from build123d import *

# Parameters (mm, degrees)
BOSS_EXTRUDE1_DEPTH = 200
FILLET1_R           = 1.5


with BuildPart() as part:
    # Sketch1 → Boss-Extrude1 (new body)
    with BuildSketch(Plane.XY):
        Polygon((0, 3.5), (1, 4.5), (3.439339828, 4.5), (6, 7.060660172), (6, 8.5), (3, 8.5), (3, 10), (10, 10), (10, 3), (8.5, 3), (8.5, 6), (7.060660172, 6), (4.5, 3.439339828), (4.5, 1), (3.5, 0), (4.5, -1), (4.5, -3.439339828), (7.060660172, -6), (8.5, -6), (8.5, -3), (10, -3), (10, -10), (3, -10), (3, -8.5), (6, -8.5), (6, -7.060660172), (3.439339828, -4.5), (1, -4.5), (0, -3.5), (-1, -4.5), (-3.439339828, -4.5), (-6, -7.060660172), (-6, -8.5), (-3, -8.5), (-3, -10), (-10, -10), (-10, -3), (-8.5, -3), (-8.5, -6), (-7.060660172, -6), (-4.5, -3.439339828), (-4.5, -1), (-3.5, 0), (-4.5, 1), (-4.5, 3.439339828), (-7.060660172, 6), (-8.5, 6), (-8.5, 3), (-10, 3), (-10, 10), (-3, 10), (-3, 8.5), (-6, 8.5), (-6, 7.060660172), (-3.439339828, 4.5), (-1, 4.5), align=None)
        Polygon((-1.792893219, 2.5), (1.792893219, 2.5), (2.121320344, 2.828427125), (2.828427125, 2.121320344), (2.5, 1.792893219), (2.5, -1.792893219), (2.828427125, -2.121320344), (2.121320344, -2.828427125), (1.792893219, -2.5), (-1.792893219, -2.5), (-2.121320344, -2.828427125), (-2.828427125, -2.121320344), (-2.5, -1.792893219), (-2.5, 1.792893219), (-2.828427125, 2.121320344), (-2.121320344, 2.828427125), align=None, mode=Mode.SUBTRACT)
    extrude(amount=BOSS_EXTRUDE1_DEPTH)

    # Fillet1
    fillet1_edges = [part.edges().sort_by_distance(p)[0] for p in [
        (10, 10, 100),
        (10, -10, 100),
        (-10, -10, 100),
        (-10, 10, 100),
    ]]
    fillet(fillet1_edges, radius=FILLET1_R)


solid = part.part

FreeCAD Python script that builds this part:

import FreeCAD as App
import Part
import Sketcher

V = App.Vector
Q = App.Units.Quantity


def edges_at(feature, points):
    """Names of the edges that pass closest to the given points."""
    edges = feature.Shape.Edges
    near = lambda p: min(range(len(edges)), key=lambda i: edges[i].distToShape(Part.Vertex(*p))[0])
    return sorted({f"Edge{near(p) + 1}" for p in points})


def add_polygon(sketch, points):
    """Adds a closed chain of lines whose ends are joined by coincident constraints."""
    first, n = sketch.GeometryCount, len(points)
    for a, b in zip(points, points[1:] + points[:1]):
        sketch.addGeometry(Part.LineSegment(App.Vector(*a, 0), App.Vector(*b, 0)), False)
    for i in range(n):
        sketch.addConstraint(Sketcher.Constraint("Coincident", first + i, 2, first + (i + 1) % n, 1))

doc = App.newDocument("Part")
body = doc.addObject("PartDesign::Body", "Body")

sketch1 = body.newObject("Sketcher::SketchObject", "Sketch")
sketch1.AttachmentSupport = (doc.getObject("XY_Plane"), [""])
sketch1.MapMode = "FlatFace"
add_polygon(sketch1, [(1, 4.5), (0, 3.5), (-1, 4.5), (-3.44, 4.5), (-6, 7.06), (-6, 8.5), (-3, 8.5), (-3, 10), (-10, 10), (-10, 3), (-8.5, 3), (-8.5, 6), (-7.06, 6), (-4.5, 3.44), (-4.5, 1), (-3.5, 0), (-4.5, -1), (-4.5, -3.44), (-7.06, -6), (-8.5, -6), (-8.5, -3), (-10, -3), (-10, -10), (-3, -10), (-3, -8.5), (-6, -8.5), (-6, -7.06), (-3.44, -4.5), (-1, -4.5), (0, -3.5), (1, -4.5), (3.44, -4.5), (6, -7.06), (6, -8.5), (3, -8.5), (3, -10), (10, -10), (10, -3), (8.5, -3), (8.5, -6), (7.06, -6), (4.5, -3.44), (4.5, -1), (3.5, 0), (4.5, 1), (4.5, 3.44), (7.06, 6), (8.5, 6), (8.5, 3), (10, 3), (10, 10), (3, 10), (3, 8.5), (6, 8.5), (6, 7.06), (3.44, 4.5)])
add_polygon(sketch1, [(-1.79, 2.5), (1.79, 2.5), (2.12, 2.83), (2.83, 2.12), (2.5, 1.79), (2.5, -1.79), (2.83, -2.12), (2.12, -2.83), (1.79, -2.5), (-1.79, -2.5), (-2.12, -2.83), (-2.83, -2.12), (-2.5, -1.79), (-2.5, 1.79), (-2.83, 2.12), (-2.12, 2.83)])
sketch1.addConstraint([
    Sketcher.Constraint("Horizontal", 2),
    Sketcher.Constraint("Vertical", 4),
    Sketcher.Constraint("Horizontal", 5),
    Sketcher.Constraint("Vertical", 6),
    Sketcher.Constraint("Horizontal", 7),
    Sketcher.Constraint("Vertical", 8),
    Sketcher.Constraint("Horizontal", 9),
    Sketcher.Constraint("Vertical", 10),
    Sketcher.Constraint("Horizontal", 11),
    Sketcher.Constraint("Vertical", 13),
    Sketcher.Constraint("Vertical", 16),
    Sketcher.Constraint("Horizontal", 18),
    Sketcher.Constraint("Vertical", 19),
    Sketcher.Constraint("Horizontal", 20),
    Sketcher.Constraint("Vertical", 21),
    Sketcher.Constraint("Horizontal", 22),
    Sketcher.Constraint("Vertical", 23),
    Sketcher.Constraint("Horizontal", 24),
    Sketcher.Constraint("Vertical", 25),
    Sketcher.Constraint("Horizontal", 27),
    Sketcher.Constraint("Horizontal", 30),
    Sketcher.Constraint("Vertical", 32),
    Sketcher.Constraint("Horizontal", 33),
    Sketcher.Constraint("Vertical", 34),
    Sketcher.Constraint("Horizontal", 35),
    Sketcher.Constraint("Vertical", 36),
    Sketcher.Constraint("Horizontal", 37),
    Sketcher.Constraint("Vertical", 38),
    Sketcher.Constraint("Horizontal", 39),
    Sketcher.Constraint("Vertical", 41),
    Sketcher.Constraint("Vertical", 44),
    Sketcher.Constraint("Horizontal", 46),
    Sketcher.Constraint("Vertical", 47),
    Sketcher.Constraint("Horizontal", 48),
    Sketcher.Constraint("Vertical", 49),
    Sketcher.Constraint("Horizontal", 50),
    Sketcher.Constraint("Vertical", 51),
    Sketcher.Constraint("Horizontal", 52),
    Sketcher.Constraint("Vertical", 53),
    Sketcher.Constraint("Horizontal", 55),
    Sketcher.Constraint("Horizontal", 56),
    Sketcher.Constraint("Vertical", 60),
    Sketcher.Constraint("Horizontal", 64),
    Sketcher.Constraint("Vertical", 68),
    Sketcher.Constraint("Symmetric", 0, 2, 28, 2, -1, 1),
    Sketcher.Constraint("Symmetric", 1, 2, 29, 2, -1, 1),
    Sketcher.Constraint("Symmetric", 3, 2, 31, 2, -1, 1),
    Sketcher.Constraint("Symmetric", 5, 2, 33, 2, -1, 1),
    Sketcher.Constraint("Symmetric", 7, 2, 35, 2, -1, 1),
    Sketcher.Constraint("Symmetric", 9, 2, 37, 2, -1, 1),
    Sketcher.Constraint("Symmetric", 11, 2, 39, 2, -1, 1),
    Sketcher.Constraint("Symmetric", 12, 2, 40, 2, -1, 1),
    Sketcher.Constraint("Symmetric", 14, 2, 42, 2, -1, 1),
    Sketcher.Constraint("Symmetric", 15, 2, 43, 2, -1, 1),
    Sketcher.Constraint("Symmetric", 17, 2, 45, 2, -1, 1),
    Sketcher.Constraint("Symmetric", 19, 2, 47, 2, -1, 1),
    Sketcher.Constraint("Symmetric", 21, 2, 49, 2, -1, 1),
    Sketcher.Constraint("Symmetric", 23, 2, 51, 2, -1, 1),
    Sketcher.Constraint("Symmetric", 25, 2, 53, 2, -1, 1),
    Sketcher.Constraint("Symmetric", 26, 2, 54, 2, -1, 1),
    Sketcher.Constraint("Symmetric", 56, 2, 64, 2, -1, 1),
    Sketcher.Constraint("Symmetric", 57, 2, 65, 2, -1, 1),
    Sketcher.Constraint("Symmetric", 58, 2, 66, 2, -1, 1),
    Sketcher.Constraint("Symmetric", 59, 2, 67, 2, -1, 1),
    Sketcher.Constraint("Symmetric", 61, 2, 69, 2, -1, 1),
    Sketcher.Constraint("Symmetric", 62, 2, 70, 2, -1, 1),
    Sketcher.Constraint("Symmetric", 27, 2, 29, 2, -2),
    Sketcher.Constraint("Symmetric", 25, 2, 31, 2, -2),
    Sketcher.Constraint("Symmetric", 23, 2, 33, 2, -2),
    Sketcher.Constraint("Symmetric", 21, 2, 35, 2, -2),
    Sketcher.Constraint("Symmetric", 19, 2, 37, 2, -2),
    Sketcher.Constraint("Symmetric", 17, 2, 39, 2, -2),
    Sketcher.Constraint("Symmetric", 16, 2, 40, 2, -2),
    Sketcher.Constraint("Symmetric", 62, 2, 65, 2, -2),
    Sketcher.Constraint("Symmetric", 61, 2, 66, 2, -2),
    Sketcher.Constraint("PointOnObject", 0, 2, -2),
    Sketcher.Constraint("PointOnObject", 14, 2, -1),
    Sketcher.Constraint("Perpendicular", 0, 1),
    Sketcher.Constraint("Parallel", 1, 3),
    Sketcher.Constraint("Parallel", 3, 12),
    Sketcher.Constraint("Parallel", 12, 14),
    Sketcher.Constraint("Perpendicular", 14, 15),
    Sketcher.Constraint("Parallel", 15, 17),
    Sketcher.Constraint("Parallel", 17, 26),
    Sketcher.Constraint("Parallel", 29, 31),
    Sketcher.Constraint("Parallel", 40, 42),
    Sketcher.Constraint("Parallel", 43, 45),
    Sketcher.Constraint("Parallel", 54, 57),
    Sketcher.Constraint("Perpendicular", 57, 58),
    Sketcher.Constraint("Perpendicular", 58, 59),
    Sketcher.Constraint("Perpendicular", 59, 61),
    Sketcher.Constraint("Perpendicular", 62, 63),
    Sketcher.Constraint("Perpendicular", 67, 69),
    Sketcher.Constraint("Perpendicular", 70, 71),
    Sketcher.Constraint("Equal", 46, 4),
    Sketcher.Constraint("Equal", 48, 6),
    Sketcher.Constraint("Equal", 50, 8),
    Sketcher.Constraint("Equal", 52, 10),
    Sketcher.Constraint("Equal", 55, 13),
    Sketcher.Constraint("Equal", 64, 60),
    Sketcher.Constraint("Equal", 3, 12),
    Sketcher.Constraint("Equal", 1, 14),
    Sketcher.Constraint("Equal", 57, 59),
    Sketcher.Constraint("DistanceX", 5, 1, 5, 2, Q("3 mm")),
    Sketcher.Constraint("DistanceX", 7, 2, 7, 1, Q("7 mm")),
    Sketcher.Constraint("Distance", 58, Q("1 mm")),
    Sketcher.Constraint("DistanceX", 9, 1, 9, 2, Q("1.5 mm")),
    Sketcher.Constraint("DistanceX", 1, 2, -1, 1, Q("1 mm")),
    Sketcher.Constraint("DistanceX", 3, 2, -1, 1, Q("6 mm")),
    Sketcher.Constraint("DistanceY", -1, 1, 0, 2, Q("3.5 mm")),
    Sketcher.Constraint("DistanceY", -1, 1, 56, 2, Q("2.5 mm")),
    Sketcher.Constraint("DistanceX", 2, 2, 2, 1, Q("2.43934 mm")),
    Sketcher.Constraint("DistanceX", -1, 1, 57, 2, Q("2.12132 mm")),
])
pad1 = body.newObject("PartDesign::Pad", "Pad")
pad1.Profile = sketch1
pad1.Length = 200
doc.recompute()

fillet = body.newObject("PartDesign::Fillet", "Fillet")
fillet.Base = (pad1, edges_at(pad1, [
    (10, 10, 100),
    (10, -10, 100),
    (-10, -10, 100),
    (-10, 10, 100),
]))
fillet.Radius = 1.5

doc.recompute()
